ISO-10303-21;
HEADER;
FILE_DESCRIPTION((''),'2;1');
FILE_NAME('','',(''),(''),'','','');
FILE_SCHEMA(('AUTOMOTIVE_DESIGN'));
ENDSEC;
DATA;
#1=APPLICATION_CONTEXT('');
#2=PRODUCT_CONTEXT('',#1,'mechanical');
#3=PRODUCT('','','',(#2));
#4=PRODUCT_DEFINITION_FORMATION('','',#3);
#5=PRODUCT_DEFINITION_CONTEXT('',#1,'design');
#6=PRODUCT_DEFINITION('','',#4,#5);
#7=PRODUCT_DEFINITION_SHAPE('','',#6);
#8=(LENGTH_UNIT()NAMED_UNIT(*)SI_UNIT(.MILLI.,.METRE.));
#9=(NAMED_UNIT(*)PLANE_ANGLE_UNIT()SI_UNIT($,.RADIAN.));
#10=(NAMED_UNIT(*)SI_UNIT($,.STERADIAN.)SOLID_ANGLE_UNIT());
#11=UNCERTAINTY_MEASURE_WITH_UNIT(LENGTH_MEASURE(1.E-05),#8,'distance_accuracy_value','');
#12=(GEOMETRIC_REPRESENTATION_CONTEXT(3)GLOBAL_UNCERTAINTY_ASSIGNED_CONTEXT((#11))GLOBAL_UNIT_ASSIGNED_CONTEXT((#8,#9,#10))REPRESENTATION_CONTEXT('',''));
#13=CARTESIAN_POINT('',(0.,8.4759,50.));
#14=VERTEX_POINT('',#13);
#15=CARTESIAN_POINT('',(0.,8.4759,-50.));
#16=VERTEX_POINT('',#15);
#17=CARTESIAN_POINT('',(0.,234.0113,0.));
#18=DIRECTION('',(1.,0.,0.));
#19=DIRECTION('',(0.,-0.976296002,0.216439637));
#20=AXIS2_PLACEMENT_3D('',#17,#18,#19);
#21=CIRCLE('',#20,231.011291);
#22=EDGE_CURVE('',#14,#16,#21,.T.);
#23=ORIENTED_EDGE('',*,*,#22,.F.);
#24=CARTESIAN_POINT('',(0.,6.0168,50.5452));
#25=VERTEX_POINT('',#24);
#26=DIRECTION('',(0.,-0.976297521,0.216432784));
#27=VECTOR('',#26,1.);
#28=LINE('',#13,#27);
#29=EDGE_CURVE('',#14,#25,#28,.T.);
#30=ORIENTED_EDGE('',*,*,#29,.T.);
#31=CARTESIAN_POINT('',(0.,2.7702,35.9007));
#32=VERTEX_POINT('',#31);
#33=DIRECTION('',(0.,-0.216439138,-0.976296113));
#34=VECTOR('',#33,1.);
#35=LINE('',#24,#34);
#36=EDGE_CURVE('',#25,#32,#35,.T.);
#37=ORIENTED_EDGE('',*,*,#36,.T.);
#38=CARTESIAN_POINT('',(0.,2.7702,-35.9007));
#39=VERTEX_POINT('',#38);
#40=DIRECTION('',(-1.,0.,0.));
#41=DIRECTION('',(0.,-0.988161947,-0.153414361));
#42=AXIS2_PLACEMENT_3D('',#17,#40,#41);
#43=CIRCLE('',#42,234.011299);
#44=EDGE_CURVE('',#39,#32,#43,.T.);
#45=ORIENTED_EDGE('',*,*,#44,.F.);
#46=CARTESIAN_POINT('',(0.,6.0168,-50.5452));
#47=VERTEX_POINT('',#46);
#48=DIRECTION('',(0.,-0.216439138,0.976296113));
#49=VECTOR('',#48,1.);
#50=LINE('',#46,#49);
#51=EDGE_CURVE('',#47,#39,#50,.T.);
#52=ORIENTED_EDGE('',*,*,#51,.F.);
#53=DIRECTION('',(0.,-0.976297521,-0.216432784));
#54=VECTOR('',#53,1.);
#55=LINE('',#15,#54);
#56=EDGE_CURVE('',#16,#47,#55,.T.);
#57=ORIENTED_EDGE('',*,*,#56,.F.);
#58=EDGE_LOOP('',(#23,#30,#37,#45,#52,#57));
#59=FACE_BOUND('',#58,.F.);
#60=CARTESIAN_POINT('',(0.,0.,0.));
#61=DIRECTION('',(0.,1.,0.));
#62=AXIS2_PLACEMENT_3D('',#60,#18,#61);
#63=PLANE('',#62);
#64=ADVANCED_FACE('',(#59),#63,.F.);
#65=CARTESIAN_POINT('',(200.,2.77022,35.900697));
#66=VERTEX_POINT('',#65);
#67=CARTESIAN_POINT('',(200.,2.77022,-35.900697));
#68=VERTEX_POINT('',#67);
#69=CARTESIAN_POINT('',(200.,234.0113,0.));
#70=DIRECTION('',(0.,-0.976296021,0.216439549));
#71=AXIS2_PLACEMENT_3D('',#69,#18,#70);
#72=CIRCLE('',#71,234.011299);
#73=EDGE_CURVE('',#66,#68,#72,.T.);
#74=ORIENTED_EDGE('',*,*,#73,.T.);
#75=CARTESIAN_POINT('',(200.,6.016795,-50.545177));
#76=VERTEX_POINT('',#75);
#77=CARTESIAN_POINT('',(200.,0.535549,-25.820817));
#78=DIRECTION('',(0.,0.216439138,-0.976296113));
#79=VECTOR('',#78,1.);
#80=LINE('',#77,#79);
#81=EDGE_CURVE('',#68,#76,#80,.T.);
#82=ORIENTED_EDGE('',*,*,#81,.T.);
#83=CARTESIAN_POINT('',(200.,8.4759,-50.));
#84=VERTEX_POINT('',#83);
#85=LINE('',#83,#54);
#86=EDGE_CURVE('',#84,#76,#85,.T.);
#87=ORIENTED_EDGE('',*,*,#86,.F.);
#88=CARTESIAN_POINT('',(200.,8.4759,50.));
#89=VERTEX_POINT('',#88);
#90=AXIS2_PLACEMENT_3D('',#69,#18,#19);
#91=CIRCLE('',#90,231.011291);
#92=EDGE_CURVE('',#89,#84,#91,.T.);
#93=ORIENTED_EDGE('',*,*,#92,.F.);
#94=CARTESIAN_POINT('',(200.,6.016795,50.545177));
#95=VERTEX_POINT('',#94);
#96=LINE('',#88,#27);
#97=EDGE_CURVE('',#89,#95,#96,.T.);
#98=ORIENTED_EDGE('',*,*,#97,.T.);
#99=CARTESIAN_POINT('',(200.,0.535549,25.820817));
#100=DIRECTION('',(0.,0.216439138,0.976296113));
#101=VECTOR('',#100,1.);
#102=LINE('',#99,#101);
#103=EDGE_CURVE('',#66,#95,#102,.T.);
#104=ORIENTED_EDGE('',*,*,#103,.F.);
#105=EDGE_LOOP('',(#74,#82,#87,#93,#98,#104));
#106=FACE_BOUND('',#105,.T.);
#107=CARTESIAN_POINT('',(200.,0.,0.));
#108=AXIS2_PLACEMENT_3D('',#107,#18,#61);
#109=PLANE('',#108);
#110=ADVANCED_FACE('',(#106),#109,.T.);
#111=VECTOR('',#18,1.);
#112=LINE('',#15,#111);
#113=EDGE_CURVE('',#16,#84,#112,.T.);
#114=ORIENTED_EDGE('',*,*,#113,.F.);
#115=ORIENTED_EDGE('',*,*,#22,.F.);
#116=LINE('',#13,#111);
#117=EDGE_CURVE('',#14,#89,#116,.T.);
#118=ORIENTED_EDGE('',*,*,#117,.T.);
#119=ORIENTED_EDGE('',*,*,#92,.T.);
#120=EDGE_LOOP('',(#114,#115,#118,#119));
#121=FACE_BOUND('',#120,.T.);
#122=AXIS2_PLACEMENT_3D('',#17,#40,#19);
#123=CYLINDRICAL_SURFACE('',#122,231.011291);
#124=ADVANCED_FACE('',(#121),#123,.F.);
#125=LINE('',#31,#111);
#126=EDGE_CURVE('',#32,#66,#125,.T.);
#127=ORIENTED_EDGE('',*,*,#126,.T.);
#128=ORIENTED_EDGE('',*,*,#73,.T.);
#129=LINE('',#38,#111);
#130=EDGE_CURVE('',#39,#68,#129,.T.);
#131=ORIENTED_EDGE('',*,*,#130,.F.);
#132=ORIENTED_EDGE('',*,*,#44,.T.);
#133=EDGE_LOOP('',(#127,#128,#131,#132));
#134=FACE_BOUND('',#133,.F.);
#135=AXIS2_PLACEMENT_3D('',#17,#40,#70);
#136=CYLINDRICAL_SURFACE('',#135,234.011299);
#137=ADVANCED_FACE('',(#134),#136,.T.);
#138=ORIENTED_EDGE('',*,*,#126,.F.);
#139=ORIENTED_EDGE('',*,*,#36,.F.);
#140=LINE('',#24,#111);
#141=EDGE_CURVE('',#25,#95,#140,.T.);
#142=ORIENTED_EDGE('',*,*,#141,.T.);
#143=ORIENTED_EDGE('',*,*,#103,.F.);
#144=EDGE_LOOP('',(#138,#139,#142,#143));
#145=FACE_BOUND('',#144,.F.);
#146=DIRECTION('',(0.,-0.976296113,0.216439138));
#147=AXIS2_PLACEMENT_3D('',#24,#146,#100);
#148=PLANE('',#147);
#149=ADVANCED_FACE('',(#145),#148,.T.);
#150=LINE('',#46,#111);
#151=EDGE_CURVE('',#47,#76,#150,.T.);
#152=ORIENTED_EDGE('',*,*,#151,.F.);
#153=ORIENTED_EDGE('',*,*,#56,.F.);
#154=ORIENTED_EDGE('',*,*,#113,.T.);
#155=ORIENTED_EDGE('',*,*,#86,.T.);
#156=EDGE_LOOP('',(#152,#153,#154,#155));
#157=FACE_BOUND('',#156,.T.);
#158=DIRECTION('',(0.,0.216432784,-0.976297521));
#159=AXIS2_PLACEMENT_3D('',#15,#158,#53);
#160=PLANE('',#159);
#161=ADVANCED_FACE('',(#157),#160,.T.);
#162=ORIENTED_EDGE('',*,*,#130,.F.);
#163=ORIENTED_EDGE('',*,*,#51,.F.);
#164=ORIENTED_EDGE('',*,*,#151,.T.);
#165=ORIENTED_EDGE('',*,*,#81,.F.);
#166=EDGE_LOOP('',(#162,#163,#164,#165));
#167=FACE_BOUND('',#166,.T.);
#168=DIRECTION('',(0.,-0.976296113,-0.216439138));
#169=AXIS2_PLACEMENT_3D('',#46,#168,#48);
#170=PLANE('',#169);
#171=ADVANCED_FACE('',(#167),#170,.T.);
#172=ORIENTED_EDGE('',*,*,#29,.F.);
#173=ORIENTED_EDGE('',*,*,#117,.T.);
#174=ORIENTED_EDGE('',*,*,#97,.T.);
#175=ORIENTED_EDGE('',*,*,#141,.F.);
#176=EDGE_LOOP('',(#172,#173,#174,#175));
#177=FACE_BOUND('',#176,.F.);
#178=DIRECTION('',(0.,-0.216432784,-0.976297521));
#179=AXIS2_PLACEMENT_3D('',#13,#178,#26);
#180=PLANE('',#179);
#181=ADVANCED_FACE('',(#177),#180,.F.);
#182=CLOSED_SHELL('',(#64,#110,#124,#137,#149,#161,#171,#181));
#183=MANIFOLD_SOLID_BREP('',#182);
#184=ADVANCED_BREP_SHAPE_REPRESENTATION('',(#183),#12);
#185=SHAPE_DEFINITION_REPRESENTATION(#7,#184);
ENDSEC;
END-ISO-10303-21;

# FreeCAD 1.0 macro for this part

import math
import FreeCAD as App
import Part
import Sketcher
Q = App.Units.Quantity

doc = App.newDocument("Part")
body = doc.addObject("PartDesign::Body", "Body")

sketch1 = doc.addObject("Sketcher::SketchObject", "Sketch")
body.addObject(sketch1)
sketch1.AttachmentSupport = (doc.YZ_Plane, [""])
sketch1.MapMode = "FlatFace"
sketch1.addGeometry(Part.ArcOfCircle(Part.Circle(App.Vector(234, 0, 0), App.Vector(0, 0, 1), 231), math.radians(167), math.radians(193)), False)
sketch1.addGeometry(Part.LineSegment(App.Vector(8.5, 50, 0), App.Vector(5.5, 50.6, 0)), False)
sketch1.addGeometry(Part.ArcOfCircle(Part.Circle(App.Vector(234, 0, 0), App.Vector(0, 0, 1), 234), math.radians(168), math.radians(192)), False)
sketch1.addGeometry(Part.LineSegment(App.Vector(5.5, -50.6, 0), App.Vector(8.5, -50, 0)), False)
sketch1.addConstraint(Sketcher.Constraint("Coincident", 0, 1, 1, 1))
sketch1.addConstraint(Sketcher.Constraint("Coincident", 1, 2, 2, 1))
sketch1.addConstraint(Sketcher.Constraint("Coincident", 2, 2, 3, 1))
sketch1.addConstraint(Sketcher.Constraint("Coincident", 3, 2, 0, 2))
sketch1.addConstraint(Sketcher.Constraint("Coincident", 2, 3, 0, 3))
sketch1.addConstraint(Sketcher.Constraint("Symmetric", 1, 2, 2, 2, -1))
sketch1.addConstraint(Sketcher.Constraint("Vertical", 0, 1, 3, 2))
sketch1.addConstraint(Sketcher.Constraint("Distance", 1, 3.0))
sketch1.addConstraint(Sketcher.Constraint("DistanceY", 3, 2, 0, 1, 100.0))
sketch1.addConstraint(Sketcher.Constraint("Angle", 1, Q("167.5004 deg")))
sketch1.addConstraint(Sketcher.Constraint("Radius", 0, 231.0113))
sketch1.addConstraint(Sketcher.Constraint("DistanceX", -1, 1, 0, 1, 8.476))
pad1 = doc.addObject("PartDesign::Pad", "Pad")
body.addObject(pad1)
pad1.Profile = sketch1
pad1.Length = 200

sketch2 = doc.addObject("Sketcher::SketchObject", "Sketch001")
body.addObject(sketch2)
sketch2.AttachmentSupport = (doc.YZ_Plane, [""])
sketch2.MapMode = "FlatFace"
sketch2.addGeometry(Part.LineSegment(App.Vector(6.02, -50.55, 0), App.Vector(5.55, -50.65, 0)), False)
sketch2.addGeometry(Part.ArcOfCircle(Part.Circle(App.Vector(234.01, 0, 0), App.Vector(0, 0, 1), 234.01), math.radians(-171.18), math.radians(-167.5)), False)
sketch2.addGeometry(Part.LineSegment(App.Vector(2.77, -35.9, 0), App.Vector(6.02, -50.55, 0)), False)
sketch2.addConstraint(Sketcher.Constraint("Coincident", 0, 2, 1, 2))
sketch2.addConstraint(Sketcher.Constraint("Coincident", 1, 1, 2, 1))
sketch2.addConstraint(Sketcher.Constraint("Coincident", 2, 2, 0, 1))
sketch2.addConstraint(Sketcher.Constraint("PointOnObject", 1, 3, -1))
sketch2.addConstraint(Sketcher.Constraint("Perpendicular", 0, 2))
sketch2.addConstraint(Sketcher.Constraint("Distance", 2, 15.0))
sketch2.addConstraint(Sketcher.Constraint("Angle", 0, Q("-167.5004 deg")))
sketch2.addConstraint(Sketcher.Constraint("Radius", 1, 234.0113))
sketch2.addConstraint(Sketcher.Constraint("DistanceX", -1, 1, 0, 2, 5.547))
sketch2.addConstraint(Sketcher.Constraint("DistanceX", 1, 1, 1, 3, 231.241))
pocket1 = doc.addObject("PartDesign::Pocket", "Pocket")
body.addObject(pocket1)
pocket1.Profile = sketch2
pocket1.Type = "ThroughAll"
pocket1.Reversed = True
doc.recompute()

mirrored = doc.addObject("PartDesign::Mirrored", "Mirrored")
body.addObject(mirrored)
mirrored.Originals = [pocket1]
mirrored.MirrorPlane = (doc.XY_Plane, [""])
body.Tip = mirrored

doc.recompute()
